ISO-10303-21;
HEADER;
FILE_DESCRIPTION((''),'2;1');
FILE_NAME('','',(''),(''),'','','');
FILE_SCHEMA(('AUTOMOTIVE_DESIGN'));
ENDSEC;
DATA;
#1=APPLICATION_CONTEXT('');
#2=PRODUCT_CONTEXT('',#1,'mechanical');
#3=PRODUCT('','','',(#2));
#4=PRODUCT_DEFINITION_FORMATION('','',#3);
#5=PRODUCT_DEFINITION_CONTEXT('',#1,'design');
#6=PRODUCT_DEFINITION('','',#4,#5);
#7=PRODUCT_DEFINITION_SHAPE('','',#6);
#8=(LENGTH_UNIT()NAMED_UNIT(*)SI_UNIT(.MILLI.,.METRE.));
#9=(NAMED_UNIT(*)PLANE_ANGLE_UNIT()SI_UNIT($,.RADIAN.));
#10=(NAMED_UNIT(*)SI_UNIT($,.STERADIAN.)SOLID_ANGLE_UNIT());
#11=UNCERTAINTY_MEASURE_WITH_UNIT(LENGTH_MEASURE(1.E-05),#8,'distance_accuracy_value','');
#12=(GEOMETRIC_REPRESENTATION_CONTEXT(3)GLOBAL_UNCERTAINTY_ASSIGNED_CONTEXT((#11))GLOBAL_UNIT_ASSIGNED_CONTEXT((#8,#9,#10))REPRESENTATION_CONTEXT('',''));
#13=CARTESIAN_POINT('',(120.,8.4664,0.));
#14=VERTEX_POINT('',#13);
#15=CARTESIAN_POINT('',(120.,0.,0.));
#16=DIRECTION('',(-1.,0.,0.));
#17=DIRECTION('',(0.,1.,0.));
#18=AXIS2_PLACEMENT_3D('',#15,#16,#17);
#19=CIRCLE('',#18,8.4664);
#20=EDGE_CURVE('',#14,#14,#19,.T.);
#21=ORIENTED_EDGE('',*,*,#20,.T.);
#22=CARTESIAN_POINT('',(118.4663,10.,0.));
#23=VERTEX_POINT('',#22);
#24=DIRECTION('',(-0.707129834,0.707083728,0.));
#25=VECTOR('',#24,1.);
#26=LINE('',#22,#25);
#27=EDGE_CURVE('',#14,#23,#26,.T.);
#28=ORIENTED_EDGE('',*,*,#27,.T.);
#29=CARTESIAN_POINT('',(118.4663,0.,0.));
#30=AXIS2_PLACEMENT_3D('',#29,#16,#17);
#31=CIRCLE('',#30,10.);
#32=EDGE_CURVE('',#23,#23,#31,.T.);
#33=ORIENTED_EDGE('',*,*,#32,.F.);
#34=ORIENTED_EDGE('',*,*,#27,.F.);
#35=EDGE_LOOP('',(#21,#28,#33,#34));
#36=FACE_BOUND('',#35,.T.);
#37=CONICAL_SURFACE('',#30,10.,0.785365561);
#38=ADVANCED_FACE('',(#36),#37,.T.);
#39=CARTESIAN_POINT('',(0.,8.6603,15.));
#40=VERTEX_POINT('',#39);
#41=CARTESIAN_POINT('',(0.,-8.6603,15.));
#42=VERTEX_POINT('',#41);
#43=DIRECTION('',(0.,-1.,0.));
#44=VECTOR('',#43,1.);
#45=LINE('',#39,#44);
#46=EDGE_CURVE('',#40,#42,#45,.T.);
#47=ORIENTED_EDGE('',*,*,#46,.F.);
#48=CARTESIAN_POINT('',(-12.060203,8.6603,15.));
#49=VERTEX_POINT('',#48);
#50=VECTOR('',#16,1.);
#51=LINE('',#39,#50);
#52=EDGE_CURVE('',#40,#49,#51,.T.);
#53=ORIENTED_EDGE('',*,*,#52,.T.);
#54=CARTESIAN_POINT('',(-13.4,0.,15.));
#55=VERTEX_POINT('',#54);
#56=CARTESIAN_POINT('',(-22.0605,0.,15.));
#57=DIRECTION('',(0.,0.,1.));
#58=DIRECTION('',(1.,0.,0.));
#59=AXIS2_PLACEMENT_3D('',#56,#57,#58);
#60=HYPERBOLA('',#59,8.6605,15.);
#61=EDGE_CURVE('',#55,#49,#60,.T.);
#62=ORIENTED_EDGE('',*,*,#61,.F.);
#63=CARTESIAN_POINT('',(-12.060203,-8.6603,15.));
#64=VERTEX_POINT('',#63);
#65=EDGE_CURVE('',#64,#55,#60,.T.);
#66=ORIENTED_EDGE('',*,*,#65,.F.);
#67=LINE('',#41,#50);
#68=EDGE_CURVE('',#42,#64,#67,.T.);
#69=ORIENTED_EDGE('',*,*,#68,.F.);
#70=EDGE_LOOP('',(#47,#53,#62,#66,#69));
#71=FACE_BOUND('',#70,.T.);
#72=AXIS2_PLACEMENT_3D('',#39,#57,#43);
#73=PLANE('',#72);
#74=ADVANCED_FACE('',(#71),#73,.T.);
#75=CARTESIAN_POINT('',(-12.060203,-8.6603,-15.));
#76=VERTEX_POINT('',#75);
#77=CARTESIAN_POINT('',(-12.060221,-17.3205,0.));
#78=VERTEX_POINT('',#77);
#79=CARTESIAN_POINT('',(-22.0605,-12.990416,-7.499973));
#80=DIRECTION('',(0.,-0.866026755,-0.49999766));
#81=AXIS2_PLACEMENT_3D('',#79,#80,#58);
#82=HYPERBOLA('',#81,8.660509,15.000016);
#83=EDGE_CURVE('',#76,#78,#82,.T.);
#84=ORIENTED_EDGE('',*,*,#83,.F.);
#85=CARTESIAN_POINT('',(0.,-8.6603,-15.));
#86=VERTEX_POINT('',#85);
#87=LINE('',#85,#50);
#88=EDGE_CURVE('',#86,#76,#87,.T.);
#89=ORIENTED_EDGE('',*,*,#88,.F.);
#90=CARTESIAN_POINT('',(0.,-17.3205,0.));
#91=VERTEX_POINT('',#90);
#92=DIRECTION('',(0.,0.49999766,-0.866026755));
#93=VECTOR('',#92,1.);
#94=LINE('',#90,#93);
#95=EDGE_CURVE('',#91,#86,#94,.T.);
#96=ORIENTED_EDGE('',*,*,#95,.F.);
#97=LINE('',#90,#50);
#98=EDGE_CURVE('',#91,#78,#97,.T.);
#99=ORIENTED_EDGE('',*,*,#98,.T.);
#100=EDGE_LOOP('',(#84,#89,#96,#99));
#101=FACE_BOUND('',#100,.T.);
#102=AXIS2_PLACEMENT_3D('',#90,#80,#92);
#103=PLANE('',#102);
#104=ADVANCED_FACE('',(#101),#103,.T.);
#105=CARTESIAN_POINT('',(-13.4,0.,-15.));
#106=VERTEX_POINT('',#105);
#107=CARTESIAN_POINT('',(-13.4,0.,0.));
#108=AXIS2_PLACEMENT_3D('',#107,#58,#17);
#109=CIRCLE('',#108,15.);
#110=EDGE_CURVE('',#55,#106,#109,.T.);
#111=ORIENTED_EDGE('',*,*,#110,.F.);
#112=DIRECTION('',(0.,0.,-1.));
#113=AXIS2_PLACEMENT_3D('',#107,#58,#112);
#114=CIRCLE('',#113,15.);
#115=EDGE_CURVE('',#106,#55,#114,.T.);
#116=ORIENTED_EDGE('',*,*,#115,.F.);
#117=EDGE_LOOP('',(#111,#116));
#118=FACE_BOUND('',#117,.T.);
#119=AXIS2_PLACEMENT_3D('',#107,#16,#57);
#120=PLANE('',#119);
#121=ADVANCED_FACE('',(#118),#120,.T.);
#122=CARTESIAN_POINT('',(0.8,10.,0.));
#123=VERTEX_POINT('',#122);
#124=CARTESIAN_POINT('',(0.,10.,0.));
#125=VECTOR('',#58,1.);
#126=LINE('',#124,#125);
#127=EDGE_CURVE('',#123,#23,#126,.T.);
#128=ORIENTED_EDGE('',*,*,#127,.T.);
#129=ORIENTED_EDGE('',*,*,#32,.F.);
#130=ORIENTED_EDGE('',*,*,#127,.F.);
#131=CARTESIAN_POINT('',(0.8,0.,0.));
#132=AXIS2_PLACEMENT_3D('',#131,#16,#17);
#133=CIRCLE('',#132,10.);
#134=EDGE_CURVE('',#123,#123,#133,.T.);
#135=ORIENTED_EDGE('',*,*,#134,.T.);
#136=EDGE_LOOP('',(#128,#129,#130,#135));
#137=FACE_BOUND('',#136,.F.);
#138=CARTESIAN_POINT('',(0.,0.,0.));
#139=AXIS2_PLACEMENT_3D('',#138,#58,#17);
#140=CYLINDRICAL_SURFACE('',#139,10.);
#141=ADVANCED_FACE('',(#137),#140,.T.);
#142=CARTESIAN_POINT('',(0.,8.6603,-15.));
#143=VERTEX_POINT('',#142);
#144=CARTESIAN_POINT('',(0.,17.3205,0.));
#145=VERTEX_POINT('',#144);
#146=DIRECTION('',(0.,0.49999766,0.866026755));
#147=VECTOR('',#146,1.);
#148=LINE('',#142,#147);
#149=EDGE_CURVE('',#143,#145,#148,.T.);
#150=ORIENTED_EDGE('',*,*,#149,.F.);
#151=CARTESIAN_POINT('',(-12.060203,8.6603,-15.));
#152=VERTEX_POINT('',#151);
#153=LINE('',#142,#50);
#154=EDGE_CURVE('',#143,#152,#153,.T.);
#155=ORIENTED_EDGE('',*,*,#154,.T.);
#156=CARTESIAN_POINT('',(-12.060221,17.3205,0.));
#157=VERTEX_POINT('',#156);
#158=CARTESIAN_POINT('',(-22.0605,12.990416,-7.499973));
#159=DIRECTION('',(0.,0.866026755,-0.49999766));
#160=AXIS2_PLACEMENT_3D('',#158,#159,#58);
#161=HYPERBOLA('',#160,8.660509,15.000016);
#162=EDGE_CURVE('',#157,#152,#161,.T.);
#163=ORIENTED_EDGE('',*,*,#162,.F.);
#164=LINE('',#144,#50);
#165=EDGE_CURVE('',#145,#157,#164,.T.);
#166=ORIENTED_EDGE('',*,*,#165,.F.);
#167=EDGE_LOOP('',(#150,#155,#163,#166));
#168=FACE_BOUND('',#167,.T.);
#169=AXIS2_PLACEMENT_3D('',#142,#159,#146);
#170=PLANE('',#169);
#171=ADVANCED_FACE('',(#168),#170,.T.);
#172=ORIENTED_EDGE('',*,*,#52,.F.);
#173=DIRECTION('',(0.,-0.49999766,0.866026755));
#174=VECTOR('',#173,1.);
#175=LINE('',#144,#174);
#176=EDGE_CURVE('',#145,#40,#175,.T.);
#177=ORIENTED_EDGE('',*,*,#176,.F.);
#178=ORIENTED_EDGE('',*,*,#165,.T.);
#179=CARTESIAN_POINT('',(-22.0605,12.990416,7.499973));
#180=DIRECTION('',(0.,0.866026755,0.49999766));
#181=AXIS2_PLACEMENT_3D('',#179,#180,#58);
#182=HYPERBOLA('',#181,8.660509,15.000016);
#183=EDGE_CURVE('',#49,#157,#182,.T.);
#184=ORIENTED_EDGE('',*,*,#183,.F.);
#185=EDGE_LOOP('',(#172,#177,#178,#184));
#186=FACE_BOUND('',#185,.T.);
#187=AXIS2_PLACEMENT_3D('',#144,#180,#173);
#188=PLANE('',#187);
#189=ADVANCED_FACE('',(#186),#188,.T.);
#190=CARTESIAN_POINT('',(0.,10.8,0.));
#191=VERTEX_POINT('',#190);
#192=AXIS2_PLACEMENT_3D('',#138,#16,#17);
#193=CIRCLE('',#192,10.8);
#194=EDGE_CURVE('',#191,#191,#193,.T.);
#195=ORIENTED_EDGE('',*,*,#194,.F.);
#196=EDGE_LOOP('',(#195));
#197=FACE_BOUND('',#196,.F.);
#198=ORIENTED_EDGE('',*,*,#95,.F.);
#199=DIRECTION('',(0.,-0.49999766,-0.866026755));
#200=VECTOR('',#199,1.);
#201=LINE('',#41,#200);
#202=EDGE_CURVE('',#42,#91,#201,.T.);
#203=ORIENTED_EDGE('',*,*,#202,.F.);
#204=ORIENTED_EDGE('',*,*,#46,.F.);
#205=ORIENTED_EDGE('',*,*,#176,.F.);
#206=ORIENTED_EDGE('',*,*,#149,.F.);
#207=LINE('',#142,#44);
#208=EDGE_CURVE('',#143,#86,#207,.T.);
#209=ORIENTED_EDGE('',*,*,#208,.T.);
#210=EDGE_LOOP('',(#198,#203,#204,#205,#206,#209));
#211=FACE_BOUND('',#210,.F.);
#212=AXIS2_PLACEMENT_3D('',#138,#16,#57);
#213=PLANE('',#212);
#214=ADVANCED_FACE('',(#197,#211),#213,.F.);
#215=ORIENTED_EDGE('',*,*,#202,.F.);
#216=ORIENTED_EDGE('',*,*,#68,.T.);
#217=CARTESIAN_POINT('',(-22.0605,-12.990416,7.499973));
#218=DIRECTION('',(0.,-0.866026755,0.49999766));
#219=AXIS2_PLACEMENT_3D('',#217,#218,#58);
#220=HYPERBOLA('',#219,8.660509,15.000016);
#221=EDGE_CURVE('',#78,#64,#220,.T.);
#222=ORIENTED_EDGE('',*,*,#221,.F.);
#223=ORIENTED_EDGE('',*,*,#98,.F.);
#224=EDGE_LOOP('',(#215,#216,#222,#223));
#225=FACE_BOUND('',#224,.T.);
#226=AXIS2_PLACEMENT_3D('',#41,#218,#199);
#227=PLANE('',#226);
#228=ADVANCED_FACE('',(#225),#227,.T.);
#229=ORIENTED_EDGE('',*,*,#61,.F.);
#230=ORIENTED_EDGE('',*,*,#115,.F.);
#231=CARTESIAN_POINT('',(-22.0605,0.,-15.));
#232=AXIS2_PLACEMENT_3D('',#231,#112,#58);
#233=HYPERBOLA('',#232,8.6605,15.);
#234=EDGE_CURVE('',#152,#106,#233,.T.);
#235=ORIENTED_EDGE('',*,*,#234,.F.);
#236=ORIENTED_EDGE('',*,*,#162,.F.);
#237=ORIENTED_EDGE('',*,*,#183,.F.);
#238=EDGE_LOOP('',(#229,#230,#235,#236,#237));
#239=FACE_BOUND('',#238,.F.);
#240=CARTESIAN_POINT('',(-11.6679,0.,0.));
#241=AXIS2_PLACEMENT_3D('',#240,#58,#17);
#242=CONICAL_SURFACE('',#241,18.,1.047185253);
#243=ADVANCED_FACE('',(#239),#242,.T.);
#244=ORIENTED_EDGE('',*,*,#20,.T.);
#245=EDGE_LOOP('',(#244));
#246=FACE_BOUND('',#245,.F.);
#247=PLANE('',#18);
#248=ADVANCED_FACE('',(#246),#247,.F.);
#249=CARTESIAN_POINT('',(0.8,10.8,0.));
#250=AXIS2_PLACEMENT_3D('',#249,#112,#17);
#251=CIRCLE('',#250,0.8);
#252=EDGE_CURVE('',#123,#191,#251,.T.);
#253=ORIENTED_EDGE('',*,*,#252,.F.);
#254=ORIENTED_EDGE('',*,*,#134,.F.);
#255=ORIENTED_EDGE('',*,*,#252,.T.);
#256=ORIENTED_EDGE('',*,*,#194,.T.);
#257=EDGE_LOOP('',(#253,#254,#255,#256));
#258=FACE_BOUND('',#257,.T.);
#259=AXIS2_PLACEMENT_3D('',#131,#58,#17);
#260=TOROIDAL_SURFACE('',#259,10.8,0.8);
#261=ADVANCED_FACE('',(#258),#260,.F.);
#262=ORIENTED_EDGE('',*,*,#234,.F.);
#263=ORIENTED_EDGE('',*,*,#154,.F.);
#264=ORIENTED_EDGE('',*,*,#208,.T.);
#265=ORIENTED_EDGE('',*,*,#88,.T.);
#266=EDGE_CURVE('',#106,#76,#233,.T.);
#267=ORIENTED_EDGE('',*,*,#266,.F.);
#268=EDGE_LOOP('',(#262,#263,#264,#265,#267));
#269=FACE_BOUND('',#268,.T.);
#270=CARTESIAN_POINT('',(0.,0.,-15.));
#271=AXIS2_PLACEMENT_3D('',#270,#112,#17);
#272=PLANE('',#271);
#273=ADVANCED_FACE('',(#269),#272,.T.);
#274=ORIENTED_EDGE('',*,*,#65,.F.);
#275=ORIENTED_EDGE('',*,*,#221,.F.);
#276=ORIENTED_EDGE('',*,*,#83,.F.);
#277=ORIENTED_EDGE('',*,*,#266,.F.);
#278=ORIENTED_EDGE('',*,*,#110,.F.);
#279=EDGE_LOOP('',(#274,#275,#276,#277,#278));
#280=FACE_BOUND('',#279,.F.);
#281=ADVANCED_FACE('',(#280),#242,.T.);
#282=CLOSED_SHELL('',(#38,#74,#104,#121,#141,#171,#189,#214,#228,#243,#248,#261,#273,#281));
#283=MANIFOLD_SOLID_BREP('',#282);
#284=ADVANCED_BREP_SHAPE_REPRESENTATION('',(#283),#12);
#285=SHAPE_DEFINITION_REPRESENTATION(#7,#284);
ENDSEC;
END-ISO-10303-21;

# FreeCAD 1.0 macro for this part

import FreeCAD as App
import Part
import Sketcher
from FreeCAD import Vector
Q = App.Units.Quantity


def edges_at(feature, points):
    """Names of the edges that pass closest to the given points."""
    edges = feature.Shape.Edges
    near = lambda p: min(range(len(edges)), key=lambda i: edges[i].distToShape(Part.Vertex(*p))[0])
    return sorted({f"Edge{near(p) + 1}" for p in points})

doc = App.newDocument("Part")
params = doc.addObject("Spreadsheet::Sheet", "Params")
for row, (alias, value) in enumerate([
    ("sketch1_width", "120 mm"),
    ("sketch1_height", "10 mm"),
    ("revolution_angle", "360 deg"),
    ("pad1_length", "13.4 mm"),
    ("sketch3_height", "3 mm"),
    ("groove_angle", "360 deg"),
    ("chamfer_size", "1.5336 mm"),
    ("chamfer_size2", "1.5337 mm"),
    ("fillet_radius", "0.8 mm"),
], start=1):
    params.set(f"A{row}", alias)
    params.set(f"B{row}", "=" + value)
    params.setAlias(f"B{row}", alias)

body = doc.addObject("PartDesign::Body", "Body")

sketch1 = body.newObject("Sketcher::SketchObject", "Sketch")
sketch1.AttachmentSupport = (doc.getObject("XY_Plane"), [""])
sketch1.MapMode = "FlatFace"
sketch1.addGeometry(Part.LineSegment(Vector(120, 10, 0), Vector(0, 10, 0)), False)
sketch1.addGeometry(Part.LineSegment(Vector(0, 10, 0), Vector(0, 0, 0)), False)
sketch1.addGeometry(Part.LineSegment(Vector(0, 0, 0), Vector(120, 0, 0)), False)
sketch1.addGeometry(Part.LineSegment(Vector(120, 0, 0), Vector(120, 10, 0)), False)
sketch1.addConstraint(Sketcher.Constraint("Coincident", 0, 2, 1, 1))
sketch1.addConstraint(Sketcher.Constraint("Coincident", 1, 2, 2, 1))
sketch1.addConstraint(Sketcher.Constraint("Coincident", 2, 2, 3, 1))
sketch1.addConstraint(Sketcher.Constraint("Coincident", 3, 2, 0, 1))
sketch1.addConstraint(Sketcher.Constraint("Horizontal", 0))
sketch1.addConstraint(Sketcher.Constraint("Vertical", 1))
sketch1.addConstraint(Sketcher.Constraint("Horizontal", 2))
sketch1.addConstraint(Sketcher.Constraint("Vertical", 3))
sketch1.addConstraint(Sketcher.Constraint("Coincident", 1, 2, -1, 1))
sketch1.addConstraint(Sketcher.Constraint("DistanceX", 0, 2, 0, 1, 120.0))
sketch1.addConstraint(Sketcher.Constraint("DistanceY", 1, 2, 1, 1, 10.0))
sketch1.setExpression("Constraints[9]", "Params.sketch1_width")
sketch1.setExpression("Constraints[10]", "Params.sketch1_height")
revolution = body.newObject("PartDesign::Revolution", "Revolution")
revolution.Profile = sketch1
revolution.ReferenceAxis = (sketch1, ["H_Axis"])
revolution.setExpression("Angle", "Params.revolution_angle")

sketch2 = body.newObject("Sketcher::SketchObject", "Sketch001")
sketch2.AttachmentSupport = (doc.getObject("YZ_Plane"), [""])
sketch2.MapMode = "FlatFace"
sketch2.addGeometry(Part.LineSegment(Vector(9, -15, 0), Vector(-9, -15, 0)), False)
sketch2.addGeometry(Part.LineSegment(Vector(-9, -15, 0), Vector(-17, 0, 0)), False)
sketch2.addGeometry(Part.LineSegment(Vector(-17, 0, 0), Vector(-9, 15, 0)), False)
sketch2.addGeometry(Part.LineSegment(Vector(-9, 15, 0), Vector(9, 15, 0)), False)
sketch2.addGeometry(Part.LineSegment(Vector(9, 15, 0), Vector(17, 0, 0)), False)
sketch2.addGeometry(Part.LineSegment(Vector(17, 0, 0), Vector(9, -15, 0)), False)
sketch2.addConstraint(Sketcher.Constraint("Coincident", 0, 2, 1, 1))
sketch2.addConstraint(Sketcher.Constraint("Coincident", 1, 2, 2, 1))
sketch2.addConstraint(Sketcher.Constraint("Coincident", 2, 2, 3, 1))
sketch2.addConstraint(Sketcher.Constraint("Coincident", 3, 2, 4, 1))
sketch2.addConstraint(Sketcher.Constraint("Coincident", 4, 2, 5, 1))
sketch2.addConstraint(Sketcher.Constraint("Coincident", 5, 2, 0, 1))
sketch2.addConstraint(Sketcher.Constraint("Horizontal", 0))
sketch2.addConstraint(Sketcher.Constraint("Horizontal", 3))
sketch2.addConstraint(Sketcher.Constraint("Symmetric", 0, 2, 3, 2, -1, 1))
sketch2.addConstraint(Sketcher.Constraint("Symmetric", 1, 2, 4, 2, -1, 1))
sketch2.addConstraint(Sketcher.Constraint("PointOnObject", 1, 2, -1))
sketch2.addConstraint(Sketcher.Constraint("Parallel", 2, 5))
sketch2.addConstraint(Sketcher.Constraint("Vertical", 0, 2, 2, 2))
sketch2.addConstraint(Sketcher.Constraint("DistanceY", 0, 2, 2, 2, 30.0))
sketch2.addConstraint(Sketcher.Constraint("Angle", 1, Q("119.9998 deg")))
sketch2.addConstraint(Sketcher.Constraint("DistanceX", 0, 2, 0, 1, 17.3206))
pad1 = body.newObject("PartDesign::Pad", "Pad")
pad1.Profile = sketch2
pad1.setExpression("Length", "Params.pad1_length")
pad1.Reversed = True

sketch3 = body.newObject("Sketcher::SketchObject", "Sketch002")
sketch3.AttachmentSupport = (doc.getObject("XY_Plane"), [""])
sketch3.MapMode = "FlatFace"
sketch3.addGeometry(Part.LineSegment(Vector(-13.4, 15, 0), Vector(-11.7, 18, 0)), False)
sketch3.addGeometry(Part.LineSegment(Vector(-11.7, 18, 0), Vector(-13.4, 18, 0)), False)
sketch3.addGeometry(Part.LineSegment(Vector(-13.4, 18, 0), Vector(-13.4, 15, 0)), False)
sketch3.addConstraint(Sketcher.Constraint("Coincident", 0, 2, 1, 1))
sketch3.addConstraint(Sketcher.Constraint("Coincident", 1, 2, 2, 1))
sketch3.addConstraint(Sketcher.Constraint("Coincident", 2, 2, 0, 1))
sketch3.addConstraint(Sketcher.Constraint("Horizontal", 1))
sketch3.addConstraint(Sketcher.Constraint("Vertical", 2))
sketch3.addConstraint(Sketcher.Constraint("DistanceX", 1, 2, -1, 1, 13.4))
sketch3.addConstraint(Sketcher.Constraint("DistanceY", 2, 2, 2, 1, 3.0))
sketch3.addConstraint(Sketcher.Constraint("Angle", 0, Q("59.9993 deg")))
sketch3.addConstraint(Sketcher.Constraint("DistanceY", -1, 1, 0, 2, 18.0))
sketch3.setExpression("Constraints[6]", "Params.sketch3_height")
groove = body.newObject("PartDesign::Groove", "Groove")
groove.Profile = sketch3
groove.ReferenceAxis = (sketch3, ["H_Axis"])
groove.setExpression("Angle", "Params.groove_angle")
doc.recompute()

chamfer = body.newObject("PartDesign::Chamfer", "Chamfer")
chamfer.Base = (groove, edges_at(groove, [(120, -10, 0)]))
chamfer.ChamferType = "Two distances"
chamfer.setExpression("Size", "Params.chamfer_size")
chamfer.setExpression("Size2", "Params.chamfer_size2")
doc.recompute()

fillet = body.newObject("PartDesign::Fillet", "Fillet")
fillet.Base = (chamfer, edges_at(chamfer, [(0, -10, 0)]))
fillet.setExpression("Radius", "Params.fillet_radius")

doc.recompute()
